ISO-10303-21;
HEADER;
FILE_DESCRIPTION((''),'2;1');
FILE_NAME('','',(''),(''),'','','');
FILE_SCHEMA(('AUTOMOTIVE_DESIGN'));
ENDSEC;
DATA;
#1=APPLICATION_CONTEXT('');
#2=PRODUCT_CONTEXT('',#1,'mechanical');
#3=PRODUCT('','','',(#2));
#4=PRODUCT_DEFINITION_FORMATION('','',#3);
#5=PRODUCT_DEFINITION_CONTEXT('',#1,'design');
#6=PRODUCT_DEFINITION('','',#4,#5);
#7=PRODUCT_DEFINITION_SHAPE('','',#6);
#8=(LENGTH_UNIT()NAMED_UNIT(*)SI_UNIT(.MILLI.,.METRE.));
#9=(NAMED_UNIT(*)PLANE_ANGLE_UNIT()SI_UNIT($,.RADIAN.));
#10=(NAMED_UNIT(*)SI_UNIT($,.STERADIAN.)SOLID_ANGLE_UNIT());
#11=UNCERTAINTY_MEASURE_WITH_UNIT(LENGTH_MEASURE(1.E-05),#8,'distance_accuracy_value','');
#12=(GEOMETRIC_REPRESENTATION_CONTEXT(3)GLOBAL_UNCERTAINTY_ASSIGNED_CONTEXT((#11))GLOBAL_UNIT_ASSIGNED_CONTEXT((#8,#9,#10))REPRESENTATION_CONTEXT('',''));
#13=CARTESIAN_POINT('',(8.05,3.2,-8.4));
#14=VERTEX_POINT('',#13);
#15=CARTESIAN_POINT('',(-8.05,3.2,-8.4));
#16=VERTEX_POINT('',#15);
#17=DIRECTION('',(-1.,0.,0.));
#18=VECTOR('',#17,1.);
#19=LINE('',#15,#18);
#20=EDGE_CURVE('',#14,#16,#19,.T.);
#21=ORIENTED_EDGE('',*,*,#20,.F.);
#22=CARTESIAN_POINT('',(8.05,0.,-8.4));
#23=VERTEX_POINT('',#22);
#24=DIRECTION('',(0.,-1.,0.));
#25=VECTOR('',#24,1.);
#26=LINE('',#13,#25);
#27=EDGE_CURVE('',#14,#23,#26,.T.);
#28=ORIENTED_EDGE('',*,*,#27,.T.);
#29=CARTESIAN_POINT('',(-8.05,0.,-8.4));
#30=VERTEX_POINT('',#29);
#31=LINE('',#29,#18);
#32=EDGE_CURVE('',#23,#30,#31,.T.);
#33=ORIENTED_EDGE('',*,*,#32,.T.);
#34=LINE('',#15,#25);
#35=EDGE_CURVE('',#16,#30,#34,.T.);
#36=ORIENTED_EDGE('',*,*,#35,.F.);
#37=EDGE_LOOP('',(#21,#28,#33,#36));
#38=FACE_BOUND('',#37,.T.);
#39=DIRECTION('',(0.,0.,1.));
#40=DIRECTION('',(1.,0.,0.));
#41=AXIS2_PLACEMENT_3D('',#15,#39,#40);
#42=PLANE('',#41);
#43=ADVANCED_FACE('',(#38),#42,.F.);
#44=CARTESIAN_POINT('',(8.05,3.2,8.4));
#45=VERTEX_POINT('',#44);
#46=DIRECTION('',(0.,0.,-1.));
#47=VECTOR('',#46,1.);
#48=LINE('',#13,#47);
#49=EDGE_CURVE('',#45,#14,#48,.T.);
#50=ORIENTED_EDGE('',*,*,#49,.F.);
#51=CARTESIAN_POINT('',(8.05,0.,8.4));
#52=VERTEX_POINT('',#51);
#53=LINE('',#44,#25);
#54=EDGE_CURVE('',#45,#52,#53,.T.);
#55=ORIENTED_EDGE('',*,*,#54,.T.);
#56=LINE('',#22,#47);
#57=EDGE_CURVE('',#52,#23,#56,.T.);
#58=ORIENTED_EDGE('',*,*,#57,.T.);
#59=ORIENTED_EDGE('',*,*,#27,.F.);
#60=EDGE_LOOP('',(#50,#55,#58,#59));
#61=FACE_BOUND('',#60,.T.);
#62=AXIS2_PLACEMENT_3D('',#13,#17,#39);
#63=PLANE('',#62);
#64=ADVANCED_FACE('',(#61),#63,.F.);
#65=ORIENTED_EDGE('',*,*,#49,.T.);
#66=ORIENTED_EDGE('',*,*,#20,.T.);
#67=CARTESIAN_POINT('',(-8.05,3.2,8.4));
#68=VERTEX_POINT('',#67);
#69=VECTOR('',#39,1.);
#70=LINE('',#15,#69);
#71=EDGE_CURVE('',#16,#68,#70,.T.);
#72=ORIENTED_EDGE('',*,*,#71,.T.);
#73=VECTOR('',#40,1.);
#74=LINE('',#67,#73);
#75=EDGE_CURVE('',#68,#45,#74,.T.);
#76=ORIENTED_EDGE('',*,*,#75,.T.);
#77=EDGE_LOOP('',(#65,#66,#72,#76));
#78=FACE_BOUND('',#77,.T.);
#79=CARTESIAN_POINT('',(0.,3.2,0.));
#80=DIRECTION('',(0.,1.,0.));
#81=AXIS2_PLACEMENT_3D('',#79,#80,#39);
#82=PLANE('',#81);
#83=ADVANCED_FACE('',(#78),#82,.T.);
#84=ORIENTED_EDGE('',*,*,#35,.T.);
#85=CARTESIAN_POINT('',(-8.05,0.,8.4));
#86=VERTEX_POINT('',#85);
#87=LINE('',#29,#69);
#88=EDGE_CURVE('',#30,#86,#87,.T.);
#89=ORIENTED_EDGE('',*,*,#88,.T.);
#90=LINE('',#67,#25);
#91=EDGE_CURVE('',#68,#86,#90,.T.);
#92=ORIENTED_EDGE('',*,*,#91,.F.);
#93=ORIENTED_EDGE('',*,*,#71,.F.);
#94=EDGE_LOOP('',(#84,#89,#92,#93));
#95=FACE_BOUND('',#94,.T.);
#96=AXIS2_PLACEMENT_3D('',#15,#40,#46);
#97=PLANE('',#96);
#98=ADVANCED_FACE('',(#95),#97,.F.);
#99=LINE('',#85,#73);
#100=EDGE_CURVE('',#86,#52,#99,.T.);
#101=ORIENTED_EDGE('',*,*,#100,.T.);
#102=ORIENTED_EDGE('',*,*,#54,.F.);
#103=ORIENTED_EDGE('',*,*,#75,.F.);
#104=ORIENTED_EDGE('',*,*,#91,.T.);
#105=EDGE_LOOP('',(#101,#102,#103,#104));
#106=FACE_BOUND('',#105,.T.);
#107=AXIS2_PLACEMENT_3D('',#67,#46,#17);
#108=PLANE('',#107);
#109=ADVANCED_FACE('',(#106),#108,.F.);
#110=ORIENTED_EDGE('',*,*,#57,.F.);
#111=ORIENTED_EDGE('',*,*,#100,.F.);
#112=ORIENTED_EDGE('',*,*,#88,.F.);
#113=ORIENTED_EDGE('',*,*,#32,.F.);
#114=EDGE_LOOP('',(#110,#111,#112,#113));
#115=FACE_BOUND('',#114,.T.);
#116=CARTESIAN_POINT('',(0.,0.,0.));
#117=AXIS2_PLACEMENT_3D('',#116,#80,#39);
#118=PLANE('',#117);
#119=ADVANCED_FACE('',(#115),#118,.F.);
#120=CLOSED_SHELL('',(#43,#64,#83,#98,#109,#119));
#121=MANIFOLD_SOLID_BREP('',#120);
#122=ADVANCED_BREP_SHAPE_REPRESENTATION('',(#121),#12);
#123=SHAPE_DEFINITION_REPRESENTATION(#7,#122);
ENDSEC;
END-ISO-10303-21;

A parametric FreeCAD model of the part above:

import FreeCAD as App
import Part
import Sketcher

V = App.Vector

doc = App.newDocument("Part")
body = doc.addObject("PartDesign::Body", "Body")

# Sketch on XZ plane
sketch1 = body.newObject("Sketcher::SketchObject", "Sketch")
sketch1.AttachmentSupport = (doc.getObject("XZ_Plane"), [""])
sketch1.MapMode = "FlatFace"
sketch1.addGeometry(Part.LineSegment(V(-8, -8, 0), V(-8, 8, 0)), False)
sketch1.addGeometry(Part.LineSegment(V(-8, 8, 0), V(8, 8, 0)), False)
sketch1.addGeometry(Part.LineSegment(V(8, 8, 0), V(8, -8, 0)), False)
sketch1.addGeometry(Part.LineSegment(V(8, -8, 0), V(-8, -8, 0)), False)
sketch1.addConstraint(Sketcher.Constraint("Coincident", 0, 2, 1, 1))
sketch1.addConstraint(Sketcher.Constraint("Coincident", 1, 2, 2, 1))
sketch1.addConstraint(Sketcher.Constraint("Coincident", 2, 2, 3, 1))
sketch1.addConstraint(Sketcher.Constraint("Coincident", 3, 2, 0, 1))
sketch1.addConstraint(Sketcher.Constraint("Vertical", 0))
sketch1.addConstraint(Sketcher.Constraint("Horizontal", 1))
sketch1.addConstraint(Sketcher.Constraint("Vertical", 2))
sketch1.addConstraint(Sketcher.Constraint("Horizontal", 3))
sketch1.addConstraint(Sketcher.Constraint("Symmetric", 0, 2, 2, 2, -1, 1))
sketch1.addConstraint(Sketcher.Constraint("DistanceX", 1, 1, 1, 2, 16.1))
sketch1.addConstraint(Sketcher.Constraint("DistanceY", 0, 1, 0, 2, 16.8))
pad1 = body.newObject("PartDesign::Pad", "Pad")
pad1.Profile = sketch1
pad1.Length = 3.2
pad1.Reversed = True

doc.recompute()
